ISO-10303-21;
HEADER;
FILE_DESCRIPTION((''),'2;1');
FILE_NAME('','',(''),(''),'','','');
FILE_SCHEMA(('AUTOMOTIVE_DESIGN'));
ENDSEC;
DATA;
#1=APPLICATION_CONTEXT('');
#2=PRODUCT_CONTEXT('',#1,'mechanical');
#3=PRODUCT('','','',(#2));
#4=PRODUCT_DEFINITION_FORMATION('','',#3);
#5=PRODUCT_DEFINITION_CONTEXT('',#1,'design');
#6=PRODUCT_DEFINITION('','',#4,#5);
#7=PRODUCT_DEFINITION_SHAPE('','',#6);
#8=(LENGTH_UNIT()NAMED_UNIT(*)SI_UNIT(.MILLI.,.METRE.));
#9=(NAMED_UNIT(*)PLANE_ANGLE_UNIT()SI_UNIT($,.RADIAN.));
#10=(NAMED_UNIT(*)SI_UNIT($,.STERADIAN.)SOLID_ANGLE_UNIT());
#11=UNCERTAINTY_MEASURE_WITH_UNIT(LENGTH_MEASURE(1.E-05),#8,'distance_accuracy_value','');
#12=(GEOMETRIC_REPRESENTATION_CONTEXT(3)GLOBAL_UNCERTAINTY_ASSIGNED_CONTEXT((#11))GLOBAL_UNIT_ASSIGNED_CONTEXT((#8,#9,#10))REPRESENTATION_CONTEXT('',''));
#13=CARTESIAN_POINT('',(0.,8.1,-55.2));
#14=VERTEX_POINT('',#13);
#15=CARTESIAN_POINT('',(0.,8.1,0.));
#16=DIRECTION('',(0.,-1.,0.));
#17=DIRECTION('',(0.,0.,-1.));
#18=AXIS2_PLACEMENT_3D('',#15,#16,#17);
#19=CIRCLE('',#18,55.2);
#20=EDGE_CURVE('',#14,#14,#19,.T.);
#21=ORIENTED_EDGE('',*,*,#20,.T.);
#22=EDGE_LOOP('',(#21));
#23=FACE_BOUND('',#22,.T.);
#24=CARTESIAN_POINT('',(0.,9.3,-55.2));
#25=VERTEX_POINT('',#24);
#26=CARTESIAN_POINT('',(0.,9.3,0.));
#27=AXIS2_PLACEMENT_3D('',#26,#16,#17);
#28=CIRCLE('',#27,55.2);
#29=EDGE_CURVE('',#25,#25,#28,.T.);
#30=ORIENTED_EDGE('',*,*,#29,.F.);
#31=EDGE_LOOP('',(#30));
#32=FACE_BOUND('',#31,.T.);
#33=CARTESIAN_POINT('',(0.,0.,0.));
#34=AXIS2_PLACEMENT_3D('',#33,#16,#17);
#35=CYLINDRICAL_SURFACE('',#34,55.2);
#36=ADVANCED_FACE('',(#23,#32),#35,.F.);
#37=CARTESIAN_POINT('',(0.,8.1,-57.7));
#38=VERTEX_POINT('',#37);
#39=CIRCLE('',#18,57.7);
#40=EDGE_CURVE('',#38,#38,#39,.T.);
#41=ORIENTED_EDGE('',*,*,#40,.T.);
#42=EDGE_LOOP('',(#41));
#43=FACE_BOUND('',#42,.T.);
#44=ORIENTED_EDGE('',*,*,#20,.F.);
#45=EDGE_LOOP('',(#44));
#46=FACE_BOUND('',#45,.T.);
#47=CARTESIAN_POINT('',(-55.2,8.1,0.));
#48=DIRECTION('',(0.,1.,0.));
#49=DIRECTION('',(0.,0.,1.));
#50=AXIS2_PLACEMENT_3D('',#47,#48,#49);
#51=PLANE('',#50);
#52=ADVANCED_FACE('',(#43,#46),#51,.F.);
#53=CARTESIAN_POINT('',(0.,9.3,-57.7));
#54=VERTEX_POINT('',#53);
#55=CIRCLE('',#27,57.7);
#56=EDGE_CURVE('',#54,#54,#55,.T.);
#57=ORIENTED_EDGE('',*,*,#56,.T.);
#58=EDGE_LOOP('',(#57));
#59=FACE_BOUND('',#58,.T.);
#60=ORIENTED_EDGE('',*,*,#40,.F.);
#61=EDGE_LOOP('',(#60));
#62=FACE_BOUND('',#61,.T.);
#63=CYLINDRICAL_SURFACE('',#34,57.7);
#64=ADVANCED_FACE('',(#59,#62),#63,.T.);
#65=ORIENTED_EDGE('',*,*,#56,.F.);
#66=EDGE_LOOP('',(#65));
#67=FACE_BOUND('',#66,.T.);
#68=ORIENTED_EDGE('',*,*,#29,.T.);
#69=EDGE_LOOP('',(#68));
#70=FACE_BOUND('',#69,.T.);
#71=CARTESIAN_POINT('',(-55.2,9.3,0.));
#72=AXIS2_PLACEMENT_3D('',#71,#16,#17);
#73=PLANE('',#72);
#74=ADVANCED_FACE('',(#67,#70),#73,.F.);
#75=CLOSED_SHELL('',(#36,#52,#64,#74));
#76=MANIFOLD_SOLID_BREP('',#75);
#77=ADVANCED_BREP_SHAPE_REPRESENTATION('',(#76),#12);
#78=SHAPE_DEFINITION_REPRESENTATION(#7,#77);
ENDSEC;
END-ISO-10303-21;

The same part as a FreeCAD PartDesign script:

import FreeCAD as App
import Part
import Sketcher
Q = App.Units.Quantity


def add_polygon(sketch, points):
    """Adds a closed chain of lines whose ends are joined by coincident constraints."""
    first, n = sketch.GeometryCount, len(points)
    for a, b in zip(points, points[1:] + points[:1]):
        sketch.addGeometry(Part.LineSegment(App.Vector(*a, 0), App.Vector(*b, 0)), False)
    for i in range(n):
        sketch.addConstraint(Sketcher.Constraint("Coincident", first + i, 2, first + (i + 1) % n, 1))

doc = App.newDocument("Part")
body = doc.addObject("PartDesign::Body", "Body")

# Sketch on XY plane
sketch1 = doc.addObject("Sketcher::SketchObject", "Sketch")
body.addObject(sketch1)
sketch1.AttachmentSupport = (doc.XY_Plane, [""])
sketch1.MapMode = "FlatFace"
add_polygon(sketch1, [(-57.7, 9.3), (-57.7, 8.1), (-55.2, 8.1), (-55.2, 9.3)])  # lines 0-3
sketch1.addConstraint([
    Sketcher.Constraint("Vertical", 0),
    Sketcher.Constraint("Horizontal", 1),
    Sketcher.Constraint("Vertical", 2),
    Sketcher.Constraint("Horizontal", 3),
    Sketcher.Constraint("DistanceX", 1, 1, 1, 2, Q("2.5 mm")),
    Sketcher.Constraint("DistanceY", 0, 2, 0, 1, Q("1.2 mm")),
    Sketcher.Constraint("DistanceX", 0, 2, -1, 1, Q("57.7 mm")),
    Sketcher.Constraint("DistanceY", -1, 1, 0, 2, Q("8.1 mm")),
])
revolution = doc.addObject("PartDesign::Revolution", "Revolution")
body.addObject(revolution)
revolution.Profile = sketch1
revolution.ReferenceAxis = (sketch1, ["V_Axis"])
revolution.Angle = 360

doc.recompute()
